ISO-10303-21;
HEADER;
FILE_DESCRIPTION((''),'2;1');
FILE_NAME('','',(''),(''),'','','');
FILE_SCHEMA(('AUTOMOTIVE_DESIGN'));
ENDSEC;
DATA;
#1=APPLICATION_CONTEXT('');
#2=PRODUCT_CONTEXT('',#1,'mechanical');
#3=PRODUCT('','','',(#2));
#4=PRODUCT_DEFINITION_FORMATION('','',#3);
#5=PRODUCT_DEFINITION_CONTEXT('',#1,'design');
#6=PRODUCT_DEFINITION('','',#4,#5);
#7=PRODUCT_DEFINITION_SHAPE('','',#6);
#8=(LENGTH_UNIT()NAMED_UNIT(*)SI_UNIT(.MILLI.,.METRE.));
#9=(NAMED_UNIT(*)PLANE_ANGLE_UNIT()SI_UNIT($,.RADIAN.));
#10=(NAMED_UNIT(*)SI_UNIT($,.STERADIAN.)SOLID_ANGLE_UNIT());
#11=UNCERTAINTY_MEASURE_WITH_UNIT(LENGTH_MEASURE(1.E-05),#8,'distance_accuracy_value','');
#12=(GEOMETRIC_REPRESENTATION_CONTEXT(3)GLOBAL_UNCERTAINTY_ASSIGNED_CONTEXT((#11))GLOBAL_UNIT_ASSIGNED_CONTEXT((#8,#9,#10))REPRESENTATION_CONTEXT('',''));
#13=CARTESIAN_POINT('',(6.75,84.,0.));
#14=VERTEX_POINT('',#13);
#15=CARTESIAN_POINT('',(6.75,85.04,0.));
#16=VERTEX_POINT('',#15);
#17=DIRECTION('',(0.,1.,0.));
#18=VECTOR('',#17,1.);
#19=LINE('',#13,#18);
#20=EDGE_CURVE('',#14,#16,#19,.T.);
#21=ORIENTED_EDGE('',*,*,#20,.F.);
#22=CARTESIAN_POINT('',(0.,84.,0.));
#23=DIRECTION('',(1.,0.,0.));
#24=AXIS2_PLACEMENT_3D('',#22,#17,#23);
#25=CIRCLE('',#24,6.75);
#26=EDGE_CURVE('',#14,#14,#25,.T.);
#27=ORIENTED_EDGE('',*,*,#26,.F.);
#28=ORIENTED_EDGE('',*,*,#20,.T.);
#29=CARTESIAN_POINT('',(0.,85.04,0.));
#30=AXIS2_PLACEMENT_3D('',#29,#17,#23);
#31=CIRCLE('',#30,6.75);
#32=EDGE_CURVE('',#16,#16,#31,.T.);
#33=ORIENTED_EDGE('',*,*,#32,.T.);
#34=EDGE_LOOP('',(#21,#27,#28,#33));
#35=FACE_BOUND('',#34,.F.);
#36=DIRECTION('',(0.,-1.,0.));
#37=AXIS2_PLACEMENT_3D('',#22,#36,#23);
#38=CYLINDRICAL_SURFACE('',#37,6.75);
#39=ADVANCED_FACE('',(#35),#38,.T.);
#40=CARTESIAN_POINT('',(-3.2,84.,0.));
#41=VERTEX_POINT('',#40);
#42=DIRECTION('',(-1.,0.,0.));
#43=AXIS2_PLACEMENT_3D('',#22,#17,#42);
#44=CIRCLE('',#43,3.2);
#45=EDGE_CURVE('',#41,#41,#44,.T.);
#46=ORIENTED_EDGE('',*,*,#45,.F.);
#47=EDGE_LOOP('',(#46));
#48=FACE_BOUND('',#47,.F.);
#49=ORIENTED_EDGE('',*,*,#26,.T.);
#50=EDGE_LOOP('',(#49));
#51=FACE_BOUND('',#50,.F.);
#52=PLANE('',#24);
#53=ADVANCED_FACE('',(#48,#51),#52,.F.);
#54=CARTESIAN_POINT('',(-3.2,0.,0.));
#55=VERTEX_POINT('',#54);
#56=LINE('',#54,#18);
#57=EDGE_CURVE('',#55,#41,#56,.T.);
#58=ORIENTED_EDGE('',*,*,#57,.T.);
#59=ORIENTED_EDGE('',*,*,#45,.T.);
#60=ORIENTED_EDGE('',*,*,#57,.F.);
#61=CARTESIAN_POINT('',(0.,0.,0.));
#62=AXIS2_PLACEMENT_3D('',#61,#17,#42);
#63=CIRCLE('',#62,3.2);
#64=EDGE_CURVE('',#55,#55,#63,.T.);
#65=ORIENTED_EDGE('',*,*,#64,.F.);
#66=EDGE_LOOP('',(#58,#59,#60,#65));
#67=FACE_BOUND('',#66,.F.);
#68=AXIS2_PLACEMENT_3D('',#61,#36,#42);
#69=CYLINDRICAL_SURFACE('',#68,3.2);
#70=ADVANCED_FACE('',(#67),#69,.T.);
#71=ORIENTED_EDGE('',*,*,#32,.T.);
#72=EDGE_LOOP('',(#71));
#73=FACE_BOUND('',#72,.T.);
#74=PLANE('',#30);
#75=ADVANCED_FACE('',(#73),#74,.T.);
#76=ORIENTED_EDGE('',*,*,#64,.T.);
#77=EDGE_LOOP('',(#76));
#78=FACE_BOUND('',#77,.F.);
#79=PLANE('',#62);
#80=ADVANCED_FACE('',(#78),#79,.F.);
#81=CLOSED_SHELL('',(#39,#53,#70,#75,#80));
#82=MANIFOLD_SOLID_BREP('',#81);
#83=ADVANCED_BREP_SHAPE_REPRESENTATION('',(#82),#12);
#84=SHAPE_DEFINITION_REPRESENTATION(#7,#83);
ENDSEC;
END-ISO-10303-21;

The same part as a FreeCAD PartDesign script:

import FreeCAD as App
import Part
import Sketcher
from FreeCAD import Vector

doc = App.newDocument("Part")
body = doc.addObject("PartDesign::Body", "Body")

# Sketch on XZ plane
sketch1 = body.newObject("Sketcher::SketchObject", "Sketch")
sketch1.AttachmentSupport = (doc.getObject("XZ_Plane"), [""])
sketch1.MapMode = "FlatFace"
sketch1.addGeometry(Part.Circle(Vector(0, 0, 0), Vector(0, 0, 1), 3.2), False)
sketch1.addConstraint([
    Sketcher.Constraint("Coincident", 0, 3, -1, 1),
    Sketcher.Constraint("Diameter", 0, 6.4),
])
pad1 = body.newObject("PartDesign::Pad", "Pad")
pad1.Profile = sketch1
pad1.Length = 84
pad1.Reversed = True

# Sketch on XZ plane
sketch2 = body.newObject("Sketcher::SketchObject", "Sketch001")
sketch2.AttachmentSupport = (doc.getObject("XZ_Plane"), [""])
sketch2.MapMode = "FlatFace"
sketch2.AttachmentOffset = App.Placement(Vector(0, 0, -84), App.Rotation())
sketch2.addGeometry(Part.Circle(Vector(0, 0, 0), Vector(0, 0, 1), 7), False)
sketch2.addConstraint([
    Sketcher.Constraint("Coincident", 0, 3, -1, 1),
    Sketcher.Constraint("Diameter", 0, 13.5),
])
pad2 = body.newObject("PartDesign::Pad", "Pad001")
pad2.Profile = sketch2
pad2.Length = 1.04
pad2.Reversed = True

doc.recompute()
